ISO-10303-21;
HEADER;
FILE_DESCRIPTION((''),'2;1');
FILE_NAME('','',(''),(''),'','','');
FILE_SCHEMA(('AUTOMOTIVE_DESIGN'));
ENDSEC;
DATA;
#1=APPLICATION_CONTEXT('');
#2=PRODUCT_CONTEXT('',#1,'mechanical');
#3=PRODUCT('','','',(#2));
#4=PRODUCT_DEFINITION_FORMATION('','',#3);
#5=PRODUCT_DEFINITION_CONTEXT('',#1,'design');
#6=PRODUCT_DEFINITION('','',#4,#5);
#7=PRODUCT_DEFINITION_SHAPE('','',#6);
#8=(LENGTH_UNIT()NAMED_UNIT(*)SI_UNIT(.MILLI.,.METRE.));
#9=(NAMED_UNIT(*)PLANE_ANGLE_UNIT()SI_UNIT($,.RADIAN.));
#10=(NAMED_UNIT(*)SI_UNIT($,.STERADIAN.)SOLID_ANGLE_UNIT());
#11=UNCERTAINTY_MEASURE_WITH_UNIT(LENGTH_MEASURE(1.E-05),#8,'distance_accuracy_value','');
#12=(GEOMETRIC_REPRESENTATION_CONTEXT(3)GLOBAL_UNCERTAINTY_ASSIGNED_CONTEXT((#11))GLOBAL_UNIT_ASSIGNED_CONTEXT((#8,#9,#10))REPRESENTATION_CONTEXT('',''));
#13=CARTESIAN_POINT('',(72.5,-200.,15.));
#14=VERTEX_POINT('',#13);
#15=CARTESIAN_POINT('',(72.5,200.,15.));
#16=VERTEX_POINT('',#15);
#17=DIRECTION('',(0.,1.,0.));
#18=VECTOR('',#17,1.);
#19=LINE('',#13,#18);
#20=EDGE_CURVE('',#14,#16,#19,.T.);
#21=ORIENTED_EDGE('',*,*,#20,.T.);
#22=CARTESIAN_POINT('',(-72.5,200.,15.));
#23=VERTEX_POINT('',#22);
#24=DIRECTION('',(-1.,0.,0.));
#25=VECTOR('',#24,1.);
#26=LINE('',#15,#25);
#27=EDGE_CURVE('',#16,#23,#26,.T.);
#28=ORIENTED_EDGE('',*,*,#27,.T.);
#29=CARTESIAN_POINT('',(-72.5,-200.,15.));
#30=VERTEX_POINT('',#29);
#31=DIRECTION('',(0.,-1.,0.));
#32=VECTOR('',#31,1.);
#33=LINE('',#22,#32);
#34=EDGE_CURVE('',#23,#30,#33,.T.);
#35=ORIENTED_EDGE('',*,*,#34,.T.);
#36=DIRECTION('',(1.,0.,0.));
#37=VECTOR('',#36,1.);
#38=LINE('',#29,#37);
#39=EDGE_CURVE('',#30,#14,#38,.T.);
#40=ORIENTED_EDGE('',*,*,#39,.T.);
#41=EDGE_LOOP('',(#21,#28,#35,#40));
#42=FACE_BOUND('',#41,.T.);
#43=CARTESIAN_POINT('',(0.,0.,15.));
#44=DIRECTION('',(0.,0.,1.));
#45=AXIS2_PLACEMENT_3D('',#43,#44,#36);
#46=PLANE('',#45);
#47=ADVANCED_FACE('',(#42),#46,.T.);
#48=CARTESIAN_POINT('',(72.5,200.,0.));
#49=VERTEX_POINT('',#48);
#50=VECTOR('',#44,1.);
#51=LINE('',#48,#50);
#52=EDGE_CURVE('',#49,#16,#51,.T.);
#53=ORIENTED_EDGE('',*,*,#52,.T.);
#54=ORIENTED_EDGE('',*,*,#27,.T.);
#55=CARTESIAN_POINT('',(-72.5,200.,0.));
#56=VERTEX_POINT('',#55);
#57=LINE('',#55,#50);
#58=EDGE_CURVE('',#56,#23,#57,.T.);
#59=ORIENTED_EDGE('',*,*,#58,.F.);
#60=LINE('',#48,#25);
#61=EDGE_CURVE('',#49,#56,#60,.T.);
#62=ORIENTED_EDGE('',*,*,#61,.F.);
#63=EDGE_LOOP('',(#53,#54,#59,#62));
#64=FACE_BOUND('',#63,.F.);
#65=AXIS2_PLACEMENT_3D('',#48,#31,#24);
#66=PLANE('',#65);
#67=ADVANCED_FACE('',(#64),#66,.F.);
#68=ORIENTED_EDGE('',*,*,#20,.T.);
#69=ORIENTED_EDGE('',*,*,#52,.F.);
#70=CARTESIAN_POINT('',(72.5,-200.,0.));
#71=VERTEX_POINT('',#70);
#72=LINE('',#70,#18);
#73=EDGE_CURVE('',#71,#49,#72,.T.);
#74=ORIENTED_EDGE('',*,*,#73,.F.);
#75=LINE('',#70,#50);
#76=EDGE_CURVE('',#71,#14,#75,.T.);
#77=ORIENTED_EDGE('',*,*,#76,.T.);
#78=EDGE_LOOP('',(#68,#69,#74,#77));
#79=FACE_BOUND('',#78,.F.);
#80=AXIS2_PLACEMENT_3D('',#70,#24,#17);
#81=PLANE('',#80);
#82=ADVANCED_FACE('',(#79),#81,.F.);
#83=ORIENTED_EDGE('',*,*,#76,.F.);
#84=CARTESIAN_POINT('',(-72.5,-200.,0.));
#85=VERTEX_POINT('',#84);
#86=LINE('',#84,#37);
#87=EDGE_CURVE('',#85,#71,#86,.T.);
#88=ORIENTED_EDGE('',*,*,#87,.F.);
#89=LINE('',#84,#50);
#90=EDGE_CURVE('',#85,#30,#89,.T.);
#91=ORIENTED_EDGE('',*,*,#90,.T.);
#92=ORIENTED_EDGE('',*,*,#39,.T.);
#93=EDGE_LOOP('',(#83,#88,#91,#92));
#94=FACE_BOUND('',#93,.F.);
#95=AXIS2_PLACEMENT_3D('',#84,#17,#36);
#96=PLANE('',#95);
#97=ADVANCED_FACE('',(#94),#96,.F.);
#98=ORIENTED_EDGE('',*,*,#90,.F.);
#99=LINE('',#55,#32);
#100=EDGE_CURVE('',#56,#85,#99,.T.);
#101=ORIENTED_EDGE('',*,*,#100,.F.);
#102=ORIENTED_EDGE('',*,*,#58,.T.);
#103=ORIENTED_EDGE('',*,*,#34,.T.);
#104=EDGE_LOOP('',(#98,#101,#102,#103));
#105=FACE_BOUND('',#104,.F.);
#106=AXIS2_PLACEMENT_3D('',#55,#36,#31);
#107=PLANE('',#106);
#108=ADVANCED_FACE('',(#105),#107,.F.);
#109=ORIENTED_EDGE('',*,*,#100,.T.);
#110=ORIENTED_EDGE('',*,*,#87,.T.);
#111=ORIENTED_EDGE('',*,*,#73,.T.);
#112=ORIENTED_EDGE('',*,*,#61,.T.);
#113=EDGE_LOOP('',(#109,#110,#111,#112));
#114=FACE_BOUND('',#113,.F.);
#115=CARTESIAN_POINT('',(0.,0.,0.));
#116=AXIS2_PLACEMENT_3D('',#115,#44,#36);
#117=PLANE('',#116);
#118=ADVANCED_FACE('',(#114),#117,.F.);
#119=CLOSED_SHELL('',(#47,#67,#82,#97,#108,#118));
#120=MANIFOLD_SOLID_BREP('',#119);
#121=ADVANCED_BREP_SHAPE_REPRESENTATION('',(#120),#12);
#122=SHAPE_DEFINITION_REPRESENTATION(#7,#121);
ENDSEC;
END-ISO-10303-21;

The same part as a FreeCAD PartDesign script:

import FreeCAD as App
import Part
import Sketcher
from FreeCAD import Vector
Q = App.Units.Quantity

doc = App.newDocument("Part")
body = doc.addObject("PartDesign::Body", "Body")

# Sketch on XY plane
sketch1 = body.newObject("Sketcher::SketchObject", "Sketch")
sketch1.AttachmentSupport = (doc.getObject("XY_Plane"), [""])
sketch1.MapMode = "FlatFace"
sketch1.addGeometry([
    Part.LineSegment(Vector(-72, 200, 0), Vector(-72, -200, 0)),
    Part.LineSegment(Vector(-72, -200, 0), Vector(72, -200, 0)),
    Part.LineSegment(Vector(72, -200, 0), Vector(72, 200, 0)),
    Part.LineSegment(Vector(72, 200, 0), Vector(-72, 200, 0)),
], False)
sketch1.addConstraint([
    Sketcher.Constraint("Coincident", 0, 2, 1, 1),
    Sketcher.Constraint("Coincident", 1, 2, 2, 1),
    Sketcher.Constraint("Coincident", 2, 2, 3, 1),
    Sketcher.Constraint("Coincident", 3, 2, 0, 1),
    Sketcher.Constraint("Vertical", 0),
    Sketcher.Constraint("Horizontal", 1),
    Sketcher.Constraint("Vertical", 2),
    Sketcher.Constraint("Horizontal", 3),
    Sketcher.Constraint("Symmetric", 0, 2, 2, 2, -1, 1),
    Sketcher.Constraint("DistanceX", 1, 1, 1, 2, Q("145 mm")),
    Sketcher.Constraint("DistanceY", 0, 2, 0, 1, Q("400 mm")),
])
pad1 = body.newObject("PartDesign::Pad", "Pad")
pad1.Profile = sketch1
pad1.Length = 15

doc.recompute()
